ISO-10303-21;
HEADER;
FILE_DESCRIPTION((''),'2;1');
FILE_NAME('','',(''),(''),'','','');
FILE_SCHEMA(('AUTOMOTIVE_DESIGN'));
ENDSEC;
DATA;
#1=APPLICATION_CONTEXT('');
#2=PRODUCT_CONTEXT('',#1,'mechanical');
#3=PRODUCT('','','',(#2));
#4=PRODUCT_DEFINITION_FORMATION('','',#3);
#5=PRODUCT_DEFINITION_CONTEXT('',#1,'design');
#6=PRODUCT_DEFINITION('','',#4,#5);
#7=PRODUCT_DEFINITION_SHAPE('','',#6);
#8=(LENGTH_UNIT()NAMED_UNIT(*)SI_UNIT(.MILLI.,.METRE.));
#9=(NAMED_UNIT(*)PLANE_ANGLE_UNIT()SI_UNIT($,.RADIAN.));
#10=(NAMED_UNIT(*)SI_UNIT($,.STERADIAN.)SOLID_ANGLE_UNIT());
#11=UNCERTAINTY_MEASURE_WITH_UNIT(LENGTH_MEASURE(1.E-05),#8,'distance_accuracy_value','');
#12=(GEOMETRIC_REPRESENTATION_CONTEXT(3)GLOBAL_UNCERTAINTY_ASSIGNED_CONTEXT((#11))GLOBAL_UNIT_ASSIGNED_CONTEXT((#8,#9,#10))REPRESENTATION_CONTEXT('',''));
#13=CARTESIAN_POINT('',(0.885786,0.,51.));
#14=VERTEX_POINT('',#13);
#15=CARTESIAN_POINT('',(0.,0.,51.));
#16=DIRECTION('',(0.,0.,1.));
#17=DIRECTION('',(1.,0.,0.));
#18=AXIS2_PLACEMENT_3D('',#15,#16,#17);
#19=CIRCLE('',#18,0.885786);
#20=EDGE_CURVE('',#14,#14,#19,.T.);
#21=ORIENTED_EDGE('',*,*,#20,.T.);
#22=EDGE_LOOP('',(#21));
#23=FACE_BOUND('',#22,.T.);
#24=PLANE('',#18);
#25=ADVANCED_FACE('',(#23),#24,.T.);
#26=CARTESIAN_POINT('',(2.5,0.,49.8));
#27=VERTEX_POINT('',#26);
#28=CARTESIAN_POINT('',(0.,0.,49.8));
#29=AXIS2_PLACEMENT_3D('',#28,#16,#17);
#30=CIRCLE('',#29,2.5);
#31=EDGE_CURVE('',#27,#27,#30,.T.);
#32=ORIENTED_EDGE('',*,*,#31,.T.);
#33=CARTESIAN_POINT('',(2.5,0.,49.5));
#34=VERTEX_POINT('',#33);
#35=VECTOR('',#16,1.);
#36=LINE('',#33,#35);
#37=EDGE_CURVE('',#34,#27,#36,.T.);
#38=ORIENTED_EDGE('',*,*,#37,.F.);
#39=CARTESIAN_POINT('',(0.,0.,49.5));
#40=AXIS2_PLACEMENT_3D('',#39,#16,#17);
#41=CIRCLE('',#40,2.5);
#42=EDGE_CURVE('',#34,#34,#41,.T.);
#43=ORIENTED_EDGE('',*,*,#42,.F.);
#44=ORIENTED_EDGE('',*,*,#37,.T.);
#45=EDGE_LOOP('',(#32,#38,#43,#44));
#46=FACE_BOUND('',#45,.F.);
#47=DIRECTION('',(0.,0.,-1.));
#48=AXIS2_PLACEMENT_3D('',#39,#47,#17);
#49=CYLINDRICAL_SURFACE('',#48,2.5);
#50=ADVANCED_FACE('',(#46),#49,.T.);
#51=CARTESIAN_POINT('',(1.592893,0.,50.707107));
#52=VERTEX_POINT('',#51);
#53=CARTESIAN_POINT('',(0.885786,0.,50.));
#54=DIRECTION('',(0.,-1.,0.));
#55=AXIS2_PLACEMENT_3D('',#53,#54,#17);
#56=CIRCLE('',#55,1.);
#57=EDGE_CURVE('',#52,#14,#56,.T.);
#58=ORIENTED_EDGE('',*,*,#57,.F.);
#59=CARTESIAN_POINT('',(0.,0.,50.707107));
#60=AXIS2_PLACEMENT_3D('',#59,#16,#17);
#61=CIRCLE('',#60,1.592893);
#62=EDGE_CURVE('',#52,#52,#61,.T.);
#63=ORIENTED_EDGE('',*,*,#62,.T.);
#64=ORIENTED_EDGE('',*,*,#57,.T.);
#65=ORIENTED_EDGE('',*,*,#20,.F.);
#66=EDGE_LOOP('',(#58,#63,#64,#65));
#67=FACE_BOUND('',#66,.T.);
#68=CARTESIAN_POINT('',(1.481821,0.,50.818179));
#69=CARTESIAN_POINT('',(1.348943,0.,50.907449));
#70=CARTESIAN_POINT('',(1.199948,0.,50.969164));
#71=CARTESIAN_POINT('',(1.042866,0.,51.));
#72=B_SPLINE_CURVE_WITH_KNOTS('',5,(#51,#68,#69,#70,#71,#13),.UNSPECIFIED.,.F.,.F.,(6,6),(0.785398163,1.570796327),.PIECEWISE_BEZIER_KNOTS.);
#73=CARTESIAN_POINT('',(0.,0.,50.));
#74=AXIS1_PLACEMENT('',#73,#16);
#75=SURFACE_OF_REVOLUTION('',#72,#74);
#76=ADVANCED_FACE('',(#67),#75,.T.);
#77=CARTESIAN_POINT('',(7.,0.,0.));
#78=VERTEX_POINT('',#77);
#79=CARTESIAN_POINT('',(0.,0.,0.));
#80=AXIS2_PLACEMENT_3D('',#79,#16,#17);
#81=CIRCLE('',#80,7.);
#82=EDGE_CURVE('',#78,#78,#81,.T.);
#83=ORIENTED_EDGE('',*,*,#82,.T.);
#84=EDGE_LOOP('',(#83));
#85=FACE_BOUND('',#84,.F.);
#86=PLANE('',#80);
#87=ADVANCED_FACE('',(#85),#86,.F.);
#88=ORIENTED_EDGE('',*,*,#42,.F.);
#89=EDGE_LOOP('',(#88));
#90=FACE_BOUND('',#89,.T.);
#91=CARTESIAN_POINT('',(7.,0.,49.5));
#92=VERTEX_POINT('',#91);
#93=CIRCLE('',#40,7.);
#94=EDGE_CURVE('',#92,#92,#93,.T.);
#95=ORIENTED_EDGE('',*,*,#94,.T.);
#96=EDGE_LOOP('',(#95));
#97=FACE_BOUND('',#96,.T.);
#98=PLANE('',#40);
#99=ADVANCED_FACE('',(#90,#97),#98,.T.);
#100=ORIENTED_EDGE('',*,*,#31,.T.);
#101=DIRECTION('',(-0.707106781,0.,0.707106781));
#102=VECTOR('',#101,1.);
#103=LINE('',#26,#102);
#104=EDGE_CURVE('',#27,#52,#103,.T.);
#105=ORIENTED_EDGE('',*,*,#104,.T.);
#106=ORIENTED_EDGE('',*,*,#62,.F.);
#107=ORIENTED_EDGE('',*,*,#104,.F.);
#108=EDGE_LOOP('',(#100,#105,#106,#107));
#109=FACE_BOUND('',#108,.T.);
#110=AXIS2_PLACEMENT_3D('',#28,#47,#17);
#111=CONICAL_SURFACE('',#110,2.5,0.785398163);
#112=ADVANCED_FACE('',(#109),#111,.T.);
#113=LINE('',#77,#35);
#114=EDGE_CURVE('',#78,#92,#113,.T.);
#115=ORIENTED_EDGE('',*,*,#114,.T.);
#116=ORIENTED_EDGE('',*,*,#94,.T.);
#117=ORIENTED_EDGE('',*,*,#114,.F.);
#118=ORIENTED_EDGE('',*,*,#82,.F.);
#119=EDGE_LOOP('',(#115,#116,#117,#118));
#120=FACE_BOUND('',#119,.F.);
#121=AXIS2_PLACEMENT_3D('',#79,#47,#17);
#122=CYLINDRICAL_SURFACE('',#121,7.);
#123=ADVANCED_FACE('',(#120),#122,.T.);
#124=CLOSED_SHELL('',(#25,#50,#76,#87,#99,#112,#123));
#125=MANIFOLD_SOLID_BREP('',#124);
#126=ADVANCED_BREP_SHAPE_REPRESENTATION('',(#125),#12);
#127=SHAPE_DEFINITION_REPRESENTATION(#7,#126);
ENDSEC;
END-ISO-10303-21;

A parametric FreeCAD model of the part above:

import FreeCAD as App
import Part
import Sketcher
from FreeCAD import Vector


def edges_at(feature, points):
    """Names of the edges that pass closest to the given points."""
    edges = feature.Shape.Edges
    near = lambda p: min(range(len(edges)), key=lambda i: edges[i].distToShape(Part.Vertex(*p))[0])
    return sorted({f"Edge{near(p) + 1}" for p in points})

doc = App.newDocument("Part")
body = doc.addObject("PartDesign::Body", "Body")

sketch1 = doc.addObject("Sketcher::SketchObject", "Sketch")
body.addObject(sketch1)
sketch1.AttachmentSupport = (doc.XY_Plane, [""])
sketch1.MapMode = "FlatFace"
sketch1.addGeometry(Part.Circle(Vector(0, 0, 0), Vector(0, 0, 1), 7), False)
sketch1.addConstraint(Sketcher.Constraint("Coincident", 0, 3, -1, 1))
sketch1.addConstraint(Sketcher.Constraint("Diameter", 0, 14.0))
pad1 = doc.addObject("PartDesign::Pad", "Pad")
body.addObject(pad1)
pad1.Profile = sketch1
pad1.Length = 49.5

sketch2 = doc.addObject("Sketcher::SketchObject", "Sketch001")
body.addObject(sketch2)
sketch2.AttachmentSupport = (doc.XY_Plane, [""])
sketch2.MapMode = "FlatFace"
sketch2.AttachmentOffset = App.Placement(Vector(0, 0, 49.5), App.Rotation())
sketch2.addGeometry(Part.Circle(Vector(0, 0, 0), Vector(0, 0, 1), 2.5), False)
sketch2.addConstraint(Sketcher.Constraint("Coincident", 0, 3, -1, 1))
sketch2.addConstraint(Sketcher.Constraint("Diameter", 0, 5.0))
pad2 = doc.addObject("PartDesign::Pad", "Pad001")
body.addObject(pad2)
pad2.Profile = sketch2
pad2.Length = 1.5
doc.recompute()

chamfer = doc.addObject("PartDesign::Chamfer", "Chamfer")
body.addObject(chamfer)
chamfer.Base = (pad2, edges_at(pad2, [(-2.5, 0, 51)]))
chamfer.Size = 1.2
doc.recompute()

fillet = doc.addObject("PartDesign::Fillet", "Fillet")
body.addObject(fillet)
fillet.Base = (chamfer, edges_at(chamfer, [(-1.3, 0, 51)]))
fillet.Radius = 1

doc.recompute()
